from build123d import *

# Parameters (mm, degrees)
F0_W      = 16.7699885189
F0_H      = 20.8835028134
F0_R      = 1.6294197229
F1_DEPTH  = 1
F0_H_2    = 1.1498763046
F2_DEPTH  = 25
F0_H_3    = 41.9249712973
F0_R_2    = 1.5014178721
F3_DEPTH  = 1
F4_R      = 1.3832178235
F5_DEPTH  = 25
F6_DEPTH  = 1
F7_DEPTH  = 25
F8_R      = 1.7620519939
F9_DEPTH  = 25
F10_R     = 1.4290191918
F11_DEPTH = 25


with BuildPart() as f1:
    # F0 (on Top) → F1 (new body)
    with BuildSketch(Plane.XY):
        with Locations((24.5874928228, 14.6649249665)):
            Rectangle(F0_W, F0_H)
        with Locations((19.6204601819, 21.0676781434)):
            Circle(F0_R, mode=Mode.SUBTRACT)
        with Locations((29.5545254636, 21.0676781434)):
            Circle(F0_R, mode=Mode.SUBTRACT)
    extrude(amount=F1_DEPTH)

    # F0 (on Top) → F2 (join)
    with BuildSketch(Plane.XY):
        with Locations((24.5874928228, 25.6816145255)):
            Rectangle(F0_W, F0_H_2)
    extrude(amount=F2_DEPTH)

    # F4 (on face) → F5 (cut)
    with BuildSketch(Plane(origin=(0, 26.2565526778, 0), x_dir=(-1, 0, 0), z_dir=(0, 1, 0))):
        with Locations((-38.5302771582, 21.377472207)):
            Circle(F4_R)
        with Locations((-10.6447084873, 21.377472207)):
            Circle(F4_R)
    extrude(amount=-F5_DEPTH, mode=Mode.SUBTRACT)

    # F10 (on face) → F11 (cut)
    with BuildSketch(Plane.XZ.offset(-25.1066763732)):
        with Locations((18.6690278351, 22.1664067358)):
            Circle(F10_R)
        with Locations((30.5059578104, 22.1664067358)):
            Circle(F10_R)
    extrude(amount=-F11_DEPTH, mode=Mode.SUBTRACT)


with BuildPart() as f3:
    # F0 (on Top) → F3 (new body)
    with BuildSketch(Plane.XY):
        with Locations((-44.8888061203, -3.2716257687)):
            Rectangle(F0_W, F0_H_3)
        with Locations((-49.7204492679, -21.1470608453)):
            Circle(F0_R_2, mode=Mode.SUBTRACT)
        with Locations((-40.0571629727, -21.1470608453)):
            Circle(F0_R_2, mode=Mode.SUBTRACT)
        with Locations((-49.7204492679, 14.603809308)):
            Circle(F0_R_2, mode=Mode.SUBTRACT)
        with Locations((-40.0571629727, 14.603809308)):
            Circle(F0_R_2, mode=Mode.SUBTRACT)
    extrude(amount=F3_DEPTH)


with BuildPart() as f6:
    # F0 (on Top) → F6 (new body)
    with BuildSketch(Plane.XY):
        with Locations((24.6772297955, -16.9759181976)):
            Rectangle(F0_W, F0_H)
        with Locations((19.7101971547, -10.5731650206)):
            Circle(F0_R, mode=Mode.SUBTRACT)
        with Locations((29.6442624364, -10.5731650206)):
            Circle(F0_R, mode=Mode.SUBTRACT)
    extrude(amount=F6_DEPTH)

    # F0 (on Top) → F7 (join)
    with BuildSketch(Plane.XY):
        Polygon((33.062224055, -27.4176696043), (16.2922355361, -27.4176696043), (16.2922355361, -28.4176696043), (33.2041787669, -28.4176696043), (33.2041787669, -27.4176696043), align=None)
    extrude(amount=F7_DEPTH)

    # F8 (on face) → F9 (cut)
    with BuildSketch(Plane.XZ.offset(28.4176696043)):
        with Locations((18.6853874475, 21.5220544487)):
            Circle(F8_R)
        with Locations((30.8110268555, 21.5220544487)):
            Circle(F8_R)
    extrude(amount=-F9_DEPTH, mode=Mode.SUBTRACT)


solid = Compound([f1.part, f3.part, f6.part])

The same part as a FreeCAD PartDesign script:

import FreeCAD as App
import Part
import Sketcher

doc = App.newDocument("Part")
body = doc.addObject("PartDesign::Body", "Body")

# Sketch on XY plane
sketch1 = body.newObject("Sketcher::SketchObject", "Sketch")
sketch1.AttachmentSupport = (doc.getObject("XY_Plane"), [""])
sketch1.MapMode = "FlatFace"
sketch1.addGeometry([
    Part.LineSegment(App.Vector(16.2, 25.1, 0), App.Vector(16.2, 4.2, 0)),  # 0
    Part.LineSegment(App.Vector(16.2, 4.2, 0), App.Vector(33, 4.2, 0)),  # 1
    Part.LineSegment(App.Vector(33, 4.2, 0), App.Vector(33, 25.1, 0)),  # 2
    Part.LineSegment(App.Vector(33, 25.1, 0), App.Vector(16.2, 25.1, 0)),  # 3
    Part.Circle(App.Vector(19.6, 21.1, 0), App.Vector(0, 0, 1), 1.6),  # 4
    Part.Circle(App.Vector(29.6, 21.1, 0), App.Vector(0, 0, 1), 1.6),  # 5
], False)
sketch1.addConstraint([
    Sketcher.Constraint("Coincident", 0, 2, 1, 1),
    Sketcher.Constraint("Coincident", 1, 2, 2, 1),
    Sketcher.Constraint("Coincident", 2, 2, 3, 1),
    Sketcher.Constraint("Coincident", 3, 2, 0, 1),
    Sketcher.Constraint("Vertical", 0),
    Sketcher.Constraint("Horizontal", 1),
    Sketcher.Constraint("Vertical", 2),
    Sketcher.Constraint("Horizontal", 3),
    Sketcher.Constraint("Equal", 4, 5),
    Sketcher.Constraint("Horizontal", 4, 3, 5, 3),
    Sketcher.Constraint("Diameter", 4, 3.258839),
    Sketcher.Constraint("DistanceY", 5, 3, 2, 2, 4.038998),
    Sketcher.Constraint("DistanceX", 1, 1, 1, 2, 16.769989),
    Sketcher.Constraint("DistanceX", -1, 1, 0, 2, 16.202499),
    Sketcher.Constraint("DistanceY", 0, 2, 0, 1, 20.883503),
    Sketcher.Constraint("DistanceX", -1, 1, 4, 3, 19.62046),
    Sketcher.Constraint("DistanceY", -1, 1, 4, 3, 21.067678),
    Sketcher.Constraint("DistanceX", 5, 3, 1, 2, 3.417962),
])
pad1 = body.newObject("PartDesign::Pad", "Pad")
pad1.Profile = sketch1
pad1.Length = 1

# Sketch on XY plane
sketch2 = body.newObject("Sketcher::SketchObject", "Sketch001")
sketch2.AttachmentSupport = (doc.getObject("XY_Plane"), [""])
sketch2.MapMode = "FlatFace"
sketch2.addGeometry([
    Part.LineSegment(App.Vector(16.2, 26.3, 0), App.Vector(16.2, 25.1, 0)),
    Part.LineSegment(App.Vector(16.2, 25.1, 0), App.Vector(33, 25.1, 0)),
    Part.LineSegment(App.Vector(33, 25.1, 0), App.Vector(33, 26.3, 0)),
    Part.LineSegment(App.Vector(33, 26.3, 0), App.Vector(16.2, 26.3, 0)),
], False)
sketch2.addConstraint([
    Sketcher.Constraint("Coincident", 0, 2, 1, 1),
    Sketcher.Constraint("Coincident", 1, 2, 2, 1),
    Sketcher.Constraint("Coincident", 2, 2, 3, 1),
    Sketcher.Constraint("Coincident", 3, 2, 0, 1),
    Sketcher.Constraint("Vertical", 0),
    Sketcher.Constraint("Horizontal", 1),
    Sketcher.Constraint("Vertical", 2),
    Sketcher.Constraint("Horizontal", 3),
    Sketcher.Constraint("DistanceX", 1, 1, 1, 2, 16.769989),
    Sketcher.Constraint("DistanceX", -1, 1, 0, 2, 16.202499),
    Sketcher.Constraint("DistanceY", 0, 2, 0, 1, 1.149876),
    Sketcher.Constraint("DistanceY", -1, 1, 0, 2, 25.106676),
])
pad2 = body.newObject("PartDesign::Pad", "Pad001")
pad2.Profile = sketch2
pad2.Length = 25

# Sketch on XZ plane
sketch3 = body.newObject("Sketcher::SketchObject", "Sketch002")
sketch3.AttachmentSupport = (doc.getObject("XZ_Plane"), [""])
sketch3.MapMode = "FlatFace"
sketch3.AttachmentOffset = App.Placement(App.Vector(0, 0, -26.256553), App.Rotation())
sketch3.addGeometry([
    Part.Circle(App.Vector(38.5, 21.4, 0), App.Vector(0, 0, 1), 1.4),
    Part.Circle(App.Vector(10.6, 21.4, 0), App.Vector(0, 0, 1), 1.4),
], False)
sketch3.addConstraint([
    Sketcher.Constraint("Equal", 0, 1),
    Sketcher.Constraint("Horizontal", 0, 3, 1, 3),
    Sketcher.Constraint("Diameter", 0, 2.766436),
    Sketcher.Constraint("DistanceX", -1, 1, 1, 3, 10.644708),
    Sketcher.Constraint("DistanceX", 1, 3, 0, 3, 27.885569),
    Sketcher.Constraint("DistanceY", -1, 1, 0, 3, 21.377472),
])
pocket1 = body.newObject("PartDesign::Pocket", "Pocket")
pocket1.Profile = sketch3
pocket1.Length = 25
pocket1.Reversed = True

# Sketch on XZ plane
sketch4 = body.newObject("Sketcher::SketchObject", "Sketch003")
sketch4.AttachmentSupport = (doc.getObject("XZ_Plane"), [""])
sketch4.MapMode = "FlatFace"
sketch4.AttachmentOffset = App.Placement(App.Vector(0, 0, -25.106676), App.Rotation())
sketch4.addGeometry([
    Part.Circle(App.Vector(18.7, 22.2, 0), App.Vector(0, 0, 1), 1.4),
    Part.Circle(App.Vector(30.5, 22.2, 0), App.Vector(0, 0, 1), 1.4),
], False)
sketch4.addConstraint([
    Sketcher.Constraint("Equal", 0, 1),
    Sketcher.Constraint("Horizontal", 0, 3, 1, 3),
    Sketcher.Constraint("Diameter", 0, 2.858038),
    Sketcher.Constraint("DistanceX", 0, 3, 1, 3, 11.83693),
    Sketcher.Constraint("DistanceX", -1, 1, 0, 3, 18.669028),
    Sketcher.Constraint("DistanceY", -1, 1, 0, 3, 22.166407),
])
pocket2 = body.newObject("PartDesign::Pocket", "Pocket001")
pocket2.Profile = sketch4
pocket2.Length = 25
body2 = doc.addObject("PartDesign::Body", "Body001")

# Sketch on XY plane
sketch5 = body2.newObject("Sketcher::SketchObject", "Sketch004")
sketch5.AttachmentSupport = (doc.getObject("XY_Plane001"), [""])
sketch5.MapMode = "FlatFace"
sketch5.addGeometry([
    Part.LineSegment(App.Vector(-53.3, 17.7, 0), App.Vector(-53.3, -24.2, 0)),  # 0
    Part.LineSegment(App.Vector(-53.3, -24.2, 0), App.Vector(-36.5, -24.2, 0)),  # 1
    Part.LineSegment(App.Vector(-36.5, -24.2, 0), App.Vector(-36.5, 17.7, 0)),  # 2
    Part.LineSegment(App.Vector(-36.5, 17.7, 0), App.Vector(-53.3, 17.7, 0)),  # 3
    Part.Circle(App.Vector(-49.7, -21.1, 0), App.Vector(0, 0, 1), 1.5),  # 4
    Part.Circle(App.Vector(-40.1, -21.1, 0), App.Vector(0, 0, 1), 1.5),  # 5
    Part.Circle(App.Vector(-49.7, 14.6, 0), App.Vector(0, 0, 1), 1.5),  # 6
    Part.Circle(App.Vector(-40.1, 14.6, 0), App.Vector(0, 0, 1), 1.5),  # 7
], False)
sketch5.addConstraint([
    Sketcher.Constraint("Coincident", 0, 2, 1, 1),
    Sketcher.Constraint("Coincident", 1, 2, 2, 1),
    Sketcher.Constraint("Coincident", 2, 2, 3, 1),
    Sketcher.Constraint("Coincident", 3, 2, 0, 1),
    Sketcher.Constraint("Vertical", 0),
    Sketcher.Constraint("Horizontal", 1),
    Sketcher.Constraint("Vertical", 2),
    Sketcher.Constraint("Horizontal", 3),
    Sketcher.Constraint("Equal", 4, 5),
    Sketcher.Constraint("Equal", 5, 6),
    Sketcher.Constraint("Equal", 6, 7),
    Sketcher.Constraint("Horizontal", 4, 3, 5, 3),
    Sketcher.Constraint("Horizontal", 6, 3, 7, 3),
    Sketcher.Constraint("Vertical", 4, 3, 6, 3),
    Sketcher.Constraint("Vertical", 5, 3, 7, 3),
    Sketcher.Constraint("Diameter", 4, 3.002836),
    Sketcher.Constraint("DistanceX", 1, 1, 1, 2, 16.769989),
    Sketcher.Constraint("DistanceY", 0, 2, 0, 1, 41.924971),
    Sketcher.Constraint("DistanceX", 0, 2, -1, 1, 53.2738),
    Sketcher.Constraint("DistanceX", 4, 3, -1, 1, 49.720449),
    Sketcher.Constraint("DistanceY", 4, 3, -1, 1, 21.147061),
    Sketcher.Constraint("DistanceY", -1, 1, 6, 3, 14.603809),
    Sketcher.Constraint("DistanceY", 0, 2, -1, 1, 24.234111),
    Sketcher.Constraint("DistanceX", 5, 3, 1, 2, 3.553351),
])
pad3 = body2.newObject("PartDesign::Pad", "Pad002")
pad3.Profile = sketch5
pad3.Length = 1
body3 = doc.addObject("PartDesign::Body", "Body002")

# Sketch on XY plane
sketch6 = body3.newObject("Sketcher::SketchObject", "Sketch005")
sketch6.AttachmentSupport = (doc.getObject("XY_Plane002"), [""])
sketch6.MapMode = "FlatFace"
sketch6.addGeometry([
    Part.LineSegment(App.Vector(16.3, -6.5, 0), App.Vector(16.3, -27.4, 0)),  # 0
    Part.LineSegment(App.Vector(16.3, -27.4, 0), App.Vector(33.1, -27.4, 0)),  # 1
    Part.LineSegment(App.Vector(33.1, -27.4, 0), App.Vector(33.1, -6.5, 0)),  # 2
    Part.LineSegment(App.Vector(33.1, -6.5, 0), App.Vector(16.3, -6.5, 0)),  # 3
    Part.Circle(App.Vector(19.7, -10.6, 0), App.Vector(0, 0, 1), 1.6),  # 4
    Part.Circle(App.Vector(29.6, -10.6, 0), App.Vector(0, 0, 1), 1.6),  # 5
], False)
sketch6.addConstraint([
    Sketcher.Constraint("Coincident", 0, 2, 1, 1),
    Sketcher.Constraint("Coincident", 1, 2, 2, 1),
    Sketcher.Constraint("Coincident", 2, 2, 3, 1),
    Sketcher.Constraint("Coincident", 3, 2, 0, 1),
    Sketcher.Constraint("Vertical", 0),
    Sketcher.Constraint("Horizontal", 1),
    Sketcher.Constraint("Vertical", 2),
    Sketcher.Constraint("Horizontal", 3),
    Sketcher.Constraint("Equal", 4, 5),
    Sketcher.Constraint("Horizontal", 4, 3, 5, 3),
    Sketcher.Constraint("Diameter", 4, 3.258839),
    Sketcher.Constraint("DistanceY", 5, 3, 2, 2, 4.038998),
    Sketcher.Constraint("DistanceX", 1, 1, 1, 2, 16.769989),
    Sketcher.Constraint("DistanceY", 0, 2, 0, 1, 20.883503),
    Sketcher.Constraint("DistanceY", 0, 2, -1, 1, 27.41767),
    Sketcher.Constraint("DistanceX", 0, 2, 4, 3, 3.417962),
    Sketcher.Constraint("DistanceX", 5, 3, 1, 2, 3.417962),
    Sketcher.Constraint("DistanceX", -1, 1, 4, 3, 19.710197),
])
pad4 = body3.newObject("PartDesign::Pad", "Pad003")
pad4.Profile = sketch6
pad4.Length = 1

# Sketch on XY plane
sketch7 = body3.newObject("Sketcher::SketchObject", "Sketch006")
sketch7.AttachmentSupport = (doc.getObject("XY_Plane002"), [""])
sketch7.MapMode = "FlatFace"
sketch7.addGeometry([
    Part.LineSegment(App.Vector(16.3, -27.4, 0), App.Vector(16.3, -28.4, 0)),
    Part.LineSegment(App.Vector(16.3, -28.4, 0), App.Vector(33.2, -28.4, 0)),
    Part.LineSegment(App.Vector(33.2, -28.4, 0), App.Vector(33.2, -27.4, 0)),
    Part.LineSegment(App.Vector(33.2, -27.4, 0), App.Vector(16.3, -27.4, 0)),
], False)
sketch7.addConstraint([
    Sketcher.Constraint("Coincident", 0, 2, 1, 1),
    Sketcher.Constraint("Coincident", 1, 2, 2, 1),
    Sketcher.Constraint("Coincident", 2, 2, 3, 1),
    Sketcher.Constraint("Coincident", 3, 2, 0, 1),
    Sketcher.Constraint("Vertical", 0),
    Sketcher.Constraint("Horizontal", 1),
    Sketcher.Constraint("Vertical", 2),
    Sketcher.Constraint("Horizontal", 3),
    Sketcher.Constraint("DistanceY", 0, 2, 0, 1, 1.0),
    Sketcher.Constraint("DistanceX", 1, 1, 1, 2, 16.911943),
    Sketcher.Constraint("DistanceY", 0, 2, -1, 1, 28.41767),
    Sketcher.Constraint("DistanceX", -1, 1, 1, 2, 33.204179),
])
pad5 = body3.newObject("PartDesign::Pad", "Pad004")
pad5.Profile = sketch7
pad5.Length = 25

# Sketch on XZ plane
sketch8 = body3.newObject("Sketcher::SketchObject", "Sketch007")
sketch8.AttachmentSupport = (doc.getObject("XZ_Plane002"), [""])
sketch8.MapMode = "FlatFace"
sketch8.AttachmentOffset = App.Placement(App.Vector(0, 0, 28.41767), App.Rotation())
sketch8.addGeometry([
    Part.Circle(App.Vector(18.7, 21.5, 0), App.Vector(0, 0, 1), 1.8),
    Part.Circle(App.Vector(30.8, 21.5, 0), App.Vector(0, 0, 1), 1.8),
], False)
sketch8.addConstraint([
    Sketcher.Constraint("Equal", 0, 1),
    Sketcher.Constraint("Horizontal", 0, 3, 1, 3),
    Sketcher.Constraint("Diameter", 0, 3.524104),
    Sketcher.Constraint("DistanceX", 0, 3, 1, 3, 12.125639),
    Sketcher.Constraint("DistanceX", -1, 1, 0, 3, 18.685387),
    Sketcher.Constraint("DistanceY", -1, 1, 0, 3, 21.522054),
])
pocket3 = body3.newObject("PartDesign::Pocket", "Pocket002")
pocket3.Profile = sketch8
pocket3.Length = 25

doc.recompute()
